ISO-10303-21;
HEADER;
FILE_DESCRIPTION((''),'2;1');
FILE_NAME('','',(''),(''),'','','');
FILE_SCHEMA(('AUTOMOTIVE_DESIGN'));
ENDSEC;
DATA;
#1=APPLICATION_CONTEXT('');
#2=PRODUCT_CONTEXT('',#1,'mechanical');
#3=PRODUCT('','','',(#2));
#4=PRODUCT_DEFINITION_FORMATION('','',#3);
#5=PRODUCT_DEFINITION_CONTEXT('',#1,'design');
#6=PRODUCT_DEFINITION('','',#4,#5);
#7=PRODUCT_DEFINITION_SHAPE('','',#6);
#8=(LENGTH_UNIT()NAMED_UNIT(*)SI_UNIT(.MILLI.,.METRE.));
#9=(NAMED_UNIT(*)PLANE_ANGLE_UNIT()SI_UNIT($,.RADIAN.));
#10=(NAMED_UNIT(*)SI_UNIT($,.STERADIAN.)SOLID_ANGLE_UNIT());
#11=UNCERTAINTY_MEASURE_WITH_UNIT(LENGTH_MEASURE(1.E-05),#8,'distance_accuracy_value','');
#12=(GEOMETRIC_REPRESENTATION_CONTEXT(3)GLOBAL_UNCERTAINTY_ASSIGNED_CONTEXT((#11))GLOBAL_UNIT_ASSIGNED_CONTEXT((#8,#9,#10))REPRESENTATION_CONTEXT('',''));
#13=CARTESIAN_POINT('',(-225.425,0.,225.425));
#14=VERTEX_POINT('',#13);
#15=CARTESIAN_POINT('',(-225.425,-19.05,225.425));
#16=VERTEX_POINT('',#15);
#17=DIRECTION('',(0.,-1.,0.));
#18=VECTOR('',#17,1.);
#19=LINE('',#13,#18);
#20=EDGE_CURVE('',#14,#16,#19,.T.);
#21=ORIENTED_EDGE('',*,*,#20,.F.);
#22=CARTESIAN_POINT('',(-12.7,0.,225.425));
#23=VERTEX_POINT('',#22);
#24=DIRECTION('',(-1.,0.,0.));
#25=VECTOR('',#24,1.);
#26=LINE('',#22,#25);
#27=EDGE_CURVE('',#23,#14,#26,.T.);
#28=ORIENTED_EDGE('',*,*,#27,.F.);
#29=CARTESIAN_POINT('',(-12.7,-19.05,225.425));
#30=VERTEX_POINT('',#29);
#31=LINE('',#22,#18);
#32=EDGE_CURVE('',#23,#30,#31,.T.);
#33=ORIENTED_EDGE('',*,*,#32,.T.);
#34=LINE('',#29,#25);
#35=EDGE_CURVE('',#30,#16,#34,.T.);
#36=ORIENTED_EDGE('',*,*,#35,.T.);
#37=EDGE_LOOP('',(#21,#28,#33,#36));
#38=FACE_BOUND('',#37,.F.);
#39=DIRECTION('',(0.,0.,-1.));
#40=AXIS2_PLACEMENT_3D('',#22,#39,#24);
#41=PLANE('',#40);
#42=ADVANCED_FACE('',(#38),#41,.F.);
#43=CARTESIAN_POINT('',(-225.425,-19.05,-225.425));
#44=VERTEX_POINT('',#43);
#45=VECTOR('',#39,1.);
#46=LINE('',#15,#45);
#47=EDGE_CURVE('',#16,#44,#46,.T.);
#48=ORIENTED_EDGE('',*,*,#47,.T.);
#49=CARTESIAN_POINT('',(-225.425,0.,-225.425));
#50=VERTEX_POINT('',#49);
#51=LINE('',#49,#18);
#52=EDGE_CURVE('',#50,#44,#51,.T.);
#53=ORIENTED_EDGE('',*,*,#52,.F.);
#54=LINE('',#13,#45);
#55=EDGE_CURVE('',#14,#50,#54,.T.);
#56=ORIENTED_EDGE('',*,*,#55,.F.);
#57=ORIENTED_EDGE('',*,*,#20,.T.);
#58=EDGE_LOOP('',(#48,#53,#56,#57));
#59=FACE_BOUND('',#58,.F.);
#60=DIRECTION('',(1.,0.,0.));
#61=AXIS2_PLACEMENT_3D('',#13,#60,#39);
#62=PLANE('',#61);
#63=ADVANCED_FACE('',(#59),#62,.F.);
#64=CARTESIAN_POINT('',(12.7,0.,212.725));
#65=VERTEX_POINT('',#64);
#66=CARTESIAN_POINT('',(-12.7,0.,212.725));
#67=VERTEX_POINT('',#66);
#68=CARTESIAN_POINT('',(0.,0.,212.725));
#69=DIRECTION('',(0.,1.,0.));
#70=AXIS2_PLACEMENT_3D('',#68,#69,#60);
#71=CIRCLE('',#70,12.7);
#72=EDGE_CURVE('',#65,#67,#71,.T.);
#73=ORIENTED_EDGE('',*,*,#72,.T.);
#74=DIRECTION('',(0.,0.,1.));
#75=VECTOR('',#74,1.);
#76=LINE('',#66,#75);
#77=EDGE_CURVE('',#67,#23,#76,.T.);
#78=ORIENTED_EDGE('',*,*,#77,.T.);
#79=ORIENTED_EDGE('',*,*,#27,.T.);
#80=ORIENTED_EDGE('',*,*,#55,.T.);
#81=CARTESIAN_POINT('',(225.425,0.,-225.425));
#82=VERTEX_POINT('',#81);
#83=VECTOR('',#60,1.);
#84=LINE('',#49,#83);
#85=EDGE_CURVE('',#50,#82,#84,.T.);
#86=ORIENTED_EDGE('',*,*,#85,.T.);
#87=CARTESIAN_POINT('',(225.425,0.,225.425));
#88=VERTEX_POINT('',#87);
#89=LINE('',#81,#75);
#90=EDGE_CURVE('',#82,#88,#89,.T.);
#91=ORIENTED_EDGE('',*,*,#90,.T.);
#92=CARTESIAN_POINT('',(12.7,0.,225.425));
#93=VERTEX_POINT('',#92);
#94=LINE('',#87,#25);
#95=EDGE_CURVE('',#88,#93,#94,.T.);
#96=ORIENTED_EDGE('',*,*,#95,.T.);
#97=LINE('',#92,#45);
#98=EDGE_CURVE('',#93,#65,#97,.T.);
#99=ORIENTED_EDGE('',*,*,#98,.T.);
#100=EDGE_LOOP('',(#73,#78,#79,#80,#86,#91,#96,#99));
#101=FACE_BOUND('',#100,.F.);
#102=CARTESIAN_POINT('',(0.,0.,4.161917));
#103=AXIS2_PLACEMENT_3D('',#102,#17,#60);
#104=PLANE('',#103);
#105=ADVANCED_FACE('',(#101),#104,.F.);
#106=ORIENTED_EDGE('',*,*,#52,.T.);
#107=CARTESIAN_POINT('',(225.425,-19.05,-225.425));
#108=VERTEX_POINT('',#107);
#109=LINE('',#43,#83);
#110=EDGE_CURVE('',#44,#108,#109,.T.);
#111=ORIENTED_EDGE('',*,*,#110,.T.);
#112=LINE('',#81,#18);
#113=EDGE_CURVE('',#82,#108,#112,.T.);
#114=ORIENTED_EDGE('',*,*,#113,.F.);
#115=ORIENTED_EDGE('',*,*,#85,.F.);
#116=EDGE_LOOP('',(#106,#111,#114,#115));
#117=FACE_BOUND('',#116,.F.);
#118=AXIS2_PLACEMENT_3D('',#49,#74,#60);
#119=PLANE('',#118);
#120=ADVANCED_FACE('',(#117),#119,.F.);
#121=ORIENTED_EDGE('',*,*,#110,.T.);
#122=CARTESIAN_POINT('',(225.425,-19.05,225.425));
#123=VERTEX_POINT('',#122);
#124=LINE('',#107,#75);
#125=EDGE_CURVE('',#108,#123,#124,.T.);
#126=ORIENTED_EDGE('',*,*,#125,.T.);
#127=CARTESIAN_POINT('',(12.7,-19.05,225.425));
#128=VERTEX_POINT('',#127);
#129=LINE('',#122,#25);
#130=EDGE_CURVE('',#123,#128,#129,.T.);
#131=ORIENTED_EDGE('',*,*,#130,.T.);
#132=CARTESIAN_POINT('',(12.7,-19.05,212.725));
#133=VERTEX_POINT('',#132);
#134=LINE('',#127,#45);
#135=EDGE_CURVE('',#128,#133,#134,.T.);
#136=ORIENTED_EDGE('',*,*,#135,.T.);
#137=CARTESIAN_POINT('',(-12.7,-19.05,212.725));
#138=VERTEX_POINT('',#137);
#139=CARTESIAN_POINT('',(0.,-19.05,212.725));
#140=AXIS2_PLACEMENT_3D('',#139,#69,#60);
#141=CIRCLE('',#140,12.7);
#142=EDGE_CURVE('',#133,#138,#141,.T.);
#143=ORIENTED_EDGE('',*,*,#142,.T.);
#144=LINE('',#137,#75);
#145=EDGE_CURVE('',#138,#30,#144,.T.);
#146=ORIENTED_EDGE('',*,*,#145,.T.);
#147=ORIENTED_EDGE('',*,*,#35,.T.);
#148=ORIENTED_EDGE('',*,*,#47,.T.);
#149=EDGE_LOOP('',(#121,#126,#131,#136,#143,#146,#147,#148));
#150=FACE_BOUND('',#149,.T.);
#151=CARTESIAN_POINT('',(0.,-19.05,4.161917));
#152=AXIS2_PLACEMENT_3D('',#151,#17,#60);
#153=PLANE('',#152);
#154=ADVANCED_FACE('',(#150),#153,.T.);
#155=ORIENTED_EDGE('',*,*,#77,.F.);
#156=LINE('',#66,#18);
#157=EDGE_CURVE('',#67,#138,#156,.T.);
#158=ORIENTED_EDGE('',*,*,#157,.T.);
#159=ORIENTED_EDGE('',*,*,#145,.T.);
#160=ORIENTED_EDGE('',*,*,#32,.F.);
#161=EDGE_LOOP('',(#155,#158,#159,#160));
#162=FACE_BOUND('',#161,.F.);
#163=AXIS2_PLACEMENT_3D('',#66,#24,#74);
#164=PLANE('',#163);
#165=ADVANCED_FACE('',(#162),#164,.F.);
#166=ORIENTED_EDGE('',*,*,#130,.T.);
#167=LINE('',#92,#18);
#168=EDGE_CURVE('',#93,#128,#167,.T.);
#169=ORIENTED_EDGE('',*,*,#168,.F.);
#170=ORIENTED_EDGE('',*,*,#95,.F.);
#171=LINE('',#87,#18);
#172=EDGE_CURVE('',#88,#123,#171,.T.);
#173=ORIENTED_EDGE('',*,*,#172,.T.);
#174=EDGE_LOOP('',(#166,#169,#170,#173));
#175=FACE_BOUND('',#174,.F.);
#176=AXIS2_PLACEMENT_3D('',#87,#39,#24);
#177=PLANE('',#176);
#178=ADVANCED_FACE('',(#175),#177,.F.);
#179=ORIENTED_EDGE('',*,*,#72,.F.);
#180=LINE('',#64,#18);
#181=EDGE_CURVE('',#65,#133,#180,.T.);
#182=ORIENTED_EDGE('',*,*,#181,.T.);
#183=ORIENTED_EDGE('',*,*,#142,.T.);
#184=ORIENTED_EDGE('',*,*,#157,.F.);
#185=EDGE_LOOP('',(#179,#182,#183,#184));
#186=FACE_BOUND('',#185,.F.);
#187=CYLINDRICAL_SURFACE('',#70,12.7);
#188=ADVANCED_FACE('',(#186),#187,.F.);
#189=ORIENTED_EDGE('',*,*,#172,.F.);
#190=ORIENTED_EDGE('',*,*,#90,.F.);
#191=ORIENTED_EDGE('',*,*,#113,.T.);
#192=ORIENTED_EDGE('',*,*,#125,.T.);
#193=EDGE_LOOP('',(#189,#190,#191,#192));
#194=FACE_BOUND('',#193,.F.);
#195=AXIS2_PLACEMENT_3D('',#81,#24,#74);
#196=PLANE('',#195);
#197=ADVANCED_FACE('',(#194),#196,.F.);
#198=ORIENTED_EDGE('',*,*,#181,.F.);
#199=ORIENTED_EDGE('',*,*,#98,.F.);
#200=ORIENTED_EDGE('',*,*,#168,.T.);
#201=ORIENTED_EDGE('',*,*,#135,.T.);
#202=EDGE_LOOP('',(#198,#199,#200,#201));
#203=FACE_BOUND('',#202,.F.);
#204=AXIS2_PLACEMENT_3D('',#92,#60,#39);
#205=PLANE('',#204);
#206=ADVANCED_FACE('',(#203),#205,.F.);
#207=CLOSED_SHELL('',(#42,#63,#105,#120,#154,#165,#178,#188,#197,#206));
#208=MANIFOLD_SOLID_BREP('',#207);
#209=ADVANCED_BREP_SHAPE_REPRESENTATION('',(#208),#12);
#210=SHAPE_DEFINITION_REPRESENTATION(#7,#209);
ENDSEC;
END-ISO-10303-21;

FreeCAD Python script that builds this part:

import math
import FreeCAD as App
import Part
import Sketcher
from FreeCAD import Vector
Q = App.Units.Quantity

doc = App.newDocument("Part")
body = doc.addObject("PartDesign::Body", "Body")

# Sketch on XZ plane
sketch1 = body.newObject("Sketcher::SketchObject", "Sketch")
sketch1.AttachmentSupport = (doc.getObject("XZ_Plane"), [""])
sketch1.MapMode = "FlatFace"
sketch1.addGeometry([
    Part.LineSegment(Vector(225.425, -225.425, 0), Vector(225.425, 225.425, 0)),  # 0
    Part.LineSegment(Vector(225.425, 225.425, 0), Vector(12.7, 225.425, 0)),  # 1
    Part.LineSegment(Vector(12.7, 225.425, 0), Vector(12.7, 212.725, 0)),  # 2
    Part.ArcOfCircle(Part.Circle(Vector(0, 212.725, 0), Vector(0, 0, 1), 12.7), math.radians(180), math.radians(360)),  # 3
    Part.LineSegment(Vector(-12.7, 212.725, 0), Vector(-12.7, 225.425, 0)),  # 4
    Part.LineSegment(Vector(-12.7, 225.425, 0), Vector(-225.425, 225.425, 0)),  # 5
    Part.LineSegment(Vector(-225.425, 225.425, 0), Vector(-225.425, -225.425, 0)),  # 6
    Part.LineSegment(Vector(-225.425, -225.425, 0), Vector(225.425, -225.425, 0)),  # 7
], False)
sketch1.addConstraint([
    Sketcher.Constraint("Coincident", 0, 2, 1, 1),
    Sketcher.Constraint("Coincident", 1, 2, 2, 1),
    Sketcher.Constraint("Tangent", 2, 2, 3, 2),
    Sketcher.Constraint("Tangent", 3, 1, 4, 1),
    Sketcher.Constraint("Coincident", 4, 2, 5, 1),
    Sketcher.Constraint("Coincident", 5, 2, 6, 1),
    Sketcher.Constraint("Coincident", 6, 2, 7, 1),
    Sketcher.Constraint("Coincident", 7, 2, 0, 1),
    Sketcher.Constraint("Vertical", 0),
    Sketcher.Constraint("Horizontal", 1),
    Sketcher.Constraint("Vertical", 2),
    Sketcher.Constraint("Vertical", 4),
    Sketcher.Constraint("Horizontal", 5),
    Sketcher.Constraint("Vertical", 6),
    Sketcher.Constraint("Horizontal", 7),
    Sketcher.Constraint("Symmetric", 0, 2, 6, 2, -1, 1),
    Sketcher.Constraint("Symmetric", 1, 2, 4, 2, -2),
    Sketcher.Constraint("Equal", 7, 0),
    Sketcher.Constraint("Radius", 3, Q("0.5 in")),
    Sketcher.Constraint("DistanceY", 2, 2, 2, 1, Q("0.5 in")),
    Sketcher.Constraint("DistanceX", 7, 1, 7, 2, Q("17.75 in")),
])
pad1 = body.newObject("PartDesign::Pad", "Pad")
pad1.Profile = sketch1
pad1.Length = Q("0.75 in")

doc.recompute()
